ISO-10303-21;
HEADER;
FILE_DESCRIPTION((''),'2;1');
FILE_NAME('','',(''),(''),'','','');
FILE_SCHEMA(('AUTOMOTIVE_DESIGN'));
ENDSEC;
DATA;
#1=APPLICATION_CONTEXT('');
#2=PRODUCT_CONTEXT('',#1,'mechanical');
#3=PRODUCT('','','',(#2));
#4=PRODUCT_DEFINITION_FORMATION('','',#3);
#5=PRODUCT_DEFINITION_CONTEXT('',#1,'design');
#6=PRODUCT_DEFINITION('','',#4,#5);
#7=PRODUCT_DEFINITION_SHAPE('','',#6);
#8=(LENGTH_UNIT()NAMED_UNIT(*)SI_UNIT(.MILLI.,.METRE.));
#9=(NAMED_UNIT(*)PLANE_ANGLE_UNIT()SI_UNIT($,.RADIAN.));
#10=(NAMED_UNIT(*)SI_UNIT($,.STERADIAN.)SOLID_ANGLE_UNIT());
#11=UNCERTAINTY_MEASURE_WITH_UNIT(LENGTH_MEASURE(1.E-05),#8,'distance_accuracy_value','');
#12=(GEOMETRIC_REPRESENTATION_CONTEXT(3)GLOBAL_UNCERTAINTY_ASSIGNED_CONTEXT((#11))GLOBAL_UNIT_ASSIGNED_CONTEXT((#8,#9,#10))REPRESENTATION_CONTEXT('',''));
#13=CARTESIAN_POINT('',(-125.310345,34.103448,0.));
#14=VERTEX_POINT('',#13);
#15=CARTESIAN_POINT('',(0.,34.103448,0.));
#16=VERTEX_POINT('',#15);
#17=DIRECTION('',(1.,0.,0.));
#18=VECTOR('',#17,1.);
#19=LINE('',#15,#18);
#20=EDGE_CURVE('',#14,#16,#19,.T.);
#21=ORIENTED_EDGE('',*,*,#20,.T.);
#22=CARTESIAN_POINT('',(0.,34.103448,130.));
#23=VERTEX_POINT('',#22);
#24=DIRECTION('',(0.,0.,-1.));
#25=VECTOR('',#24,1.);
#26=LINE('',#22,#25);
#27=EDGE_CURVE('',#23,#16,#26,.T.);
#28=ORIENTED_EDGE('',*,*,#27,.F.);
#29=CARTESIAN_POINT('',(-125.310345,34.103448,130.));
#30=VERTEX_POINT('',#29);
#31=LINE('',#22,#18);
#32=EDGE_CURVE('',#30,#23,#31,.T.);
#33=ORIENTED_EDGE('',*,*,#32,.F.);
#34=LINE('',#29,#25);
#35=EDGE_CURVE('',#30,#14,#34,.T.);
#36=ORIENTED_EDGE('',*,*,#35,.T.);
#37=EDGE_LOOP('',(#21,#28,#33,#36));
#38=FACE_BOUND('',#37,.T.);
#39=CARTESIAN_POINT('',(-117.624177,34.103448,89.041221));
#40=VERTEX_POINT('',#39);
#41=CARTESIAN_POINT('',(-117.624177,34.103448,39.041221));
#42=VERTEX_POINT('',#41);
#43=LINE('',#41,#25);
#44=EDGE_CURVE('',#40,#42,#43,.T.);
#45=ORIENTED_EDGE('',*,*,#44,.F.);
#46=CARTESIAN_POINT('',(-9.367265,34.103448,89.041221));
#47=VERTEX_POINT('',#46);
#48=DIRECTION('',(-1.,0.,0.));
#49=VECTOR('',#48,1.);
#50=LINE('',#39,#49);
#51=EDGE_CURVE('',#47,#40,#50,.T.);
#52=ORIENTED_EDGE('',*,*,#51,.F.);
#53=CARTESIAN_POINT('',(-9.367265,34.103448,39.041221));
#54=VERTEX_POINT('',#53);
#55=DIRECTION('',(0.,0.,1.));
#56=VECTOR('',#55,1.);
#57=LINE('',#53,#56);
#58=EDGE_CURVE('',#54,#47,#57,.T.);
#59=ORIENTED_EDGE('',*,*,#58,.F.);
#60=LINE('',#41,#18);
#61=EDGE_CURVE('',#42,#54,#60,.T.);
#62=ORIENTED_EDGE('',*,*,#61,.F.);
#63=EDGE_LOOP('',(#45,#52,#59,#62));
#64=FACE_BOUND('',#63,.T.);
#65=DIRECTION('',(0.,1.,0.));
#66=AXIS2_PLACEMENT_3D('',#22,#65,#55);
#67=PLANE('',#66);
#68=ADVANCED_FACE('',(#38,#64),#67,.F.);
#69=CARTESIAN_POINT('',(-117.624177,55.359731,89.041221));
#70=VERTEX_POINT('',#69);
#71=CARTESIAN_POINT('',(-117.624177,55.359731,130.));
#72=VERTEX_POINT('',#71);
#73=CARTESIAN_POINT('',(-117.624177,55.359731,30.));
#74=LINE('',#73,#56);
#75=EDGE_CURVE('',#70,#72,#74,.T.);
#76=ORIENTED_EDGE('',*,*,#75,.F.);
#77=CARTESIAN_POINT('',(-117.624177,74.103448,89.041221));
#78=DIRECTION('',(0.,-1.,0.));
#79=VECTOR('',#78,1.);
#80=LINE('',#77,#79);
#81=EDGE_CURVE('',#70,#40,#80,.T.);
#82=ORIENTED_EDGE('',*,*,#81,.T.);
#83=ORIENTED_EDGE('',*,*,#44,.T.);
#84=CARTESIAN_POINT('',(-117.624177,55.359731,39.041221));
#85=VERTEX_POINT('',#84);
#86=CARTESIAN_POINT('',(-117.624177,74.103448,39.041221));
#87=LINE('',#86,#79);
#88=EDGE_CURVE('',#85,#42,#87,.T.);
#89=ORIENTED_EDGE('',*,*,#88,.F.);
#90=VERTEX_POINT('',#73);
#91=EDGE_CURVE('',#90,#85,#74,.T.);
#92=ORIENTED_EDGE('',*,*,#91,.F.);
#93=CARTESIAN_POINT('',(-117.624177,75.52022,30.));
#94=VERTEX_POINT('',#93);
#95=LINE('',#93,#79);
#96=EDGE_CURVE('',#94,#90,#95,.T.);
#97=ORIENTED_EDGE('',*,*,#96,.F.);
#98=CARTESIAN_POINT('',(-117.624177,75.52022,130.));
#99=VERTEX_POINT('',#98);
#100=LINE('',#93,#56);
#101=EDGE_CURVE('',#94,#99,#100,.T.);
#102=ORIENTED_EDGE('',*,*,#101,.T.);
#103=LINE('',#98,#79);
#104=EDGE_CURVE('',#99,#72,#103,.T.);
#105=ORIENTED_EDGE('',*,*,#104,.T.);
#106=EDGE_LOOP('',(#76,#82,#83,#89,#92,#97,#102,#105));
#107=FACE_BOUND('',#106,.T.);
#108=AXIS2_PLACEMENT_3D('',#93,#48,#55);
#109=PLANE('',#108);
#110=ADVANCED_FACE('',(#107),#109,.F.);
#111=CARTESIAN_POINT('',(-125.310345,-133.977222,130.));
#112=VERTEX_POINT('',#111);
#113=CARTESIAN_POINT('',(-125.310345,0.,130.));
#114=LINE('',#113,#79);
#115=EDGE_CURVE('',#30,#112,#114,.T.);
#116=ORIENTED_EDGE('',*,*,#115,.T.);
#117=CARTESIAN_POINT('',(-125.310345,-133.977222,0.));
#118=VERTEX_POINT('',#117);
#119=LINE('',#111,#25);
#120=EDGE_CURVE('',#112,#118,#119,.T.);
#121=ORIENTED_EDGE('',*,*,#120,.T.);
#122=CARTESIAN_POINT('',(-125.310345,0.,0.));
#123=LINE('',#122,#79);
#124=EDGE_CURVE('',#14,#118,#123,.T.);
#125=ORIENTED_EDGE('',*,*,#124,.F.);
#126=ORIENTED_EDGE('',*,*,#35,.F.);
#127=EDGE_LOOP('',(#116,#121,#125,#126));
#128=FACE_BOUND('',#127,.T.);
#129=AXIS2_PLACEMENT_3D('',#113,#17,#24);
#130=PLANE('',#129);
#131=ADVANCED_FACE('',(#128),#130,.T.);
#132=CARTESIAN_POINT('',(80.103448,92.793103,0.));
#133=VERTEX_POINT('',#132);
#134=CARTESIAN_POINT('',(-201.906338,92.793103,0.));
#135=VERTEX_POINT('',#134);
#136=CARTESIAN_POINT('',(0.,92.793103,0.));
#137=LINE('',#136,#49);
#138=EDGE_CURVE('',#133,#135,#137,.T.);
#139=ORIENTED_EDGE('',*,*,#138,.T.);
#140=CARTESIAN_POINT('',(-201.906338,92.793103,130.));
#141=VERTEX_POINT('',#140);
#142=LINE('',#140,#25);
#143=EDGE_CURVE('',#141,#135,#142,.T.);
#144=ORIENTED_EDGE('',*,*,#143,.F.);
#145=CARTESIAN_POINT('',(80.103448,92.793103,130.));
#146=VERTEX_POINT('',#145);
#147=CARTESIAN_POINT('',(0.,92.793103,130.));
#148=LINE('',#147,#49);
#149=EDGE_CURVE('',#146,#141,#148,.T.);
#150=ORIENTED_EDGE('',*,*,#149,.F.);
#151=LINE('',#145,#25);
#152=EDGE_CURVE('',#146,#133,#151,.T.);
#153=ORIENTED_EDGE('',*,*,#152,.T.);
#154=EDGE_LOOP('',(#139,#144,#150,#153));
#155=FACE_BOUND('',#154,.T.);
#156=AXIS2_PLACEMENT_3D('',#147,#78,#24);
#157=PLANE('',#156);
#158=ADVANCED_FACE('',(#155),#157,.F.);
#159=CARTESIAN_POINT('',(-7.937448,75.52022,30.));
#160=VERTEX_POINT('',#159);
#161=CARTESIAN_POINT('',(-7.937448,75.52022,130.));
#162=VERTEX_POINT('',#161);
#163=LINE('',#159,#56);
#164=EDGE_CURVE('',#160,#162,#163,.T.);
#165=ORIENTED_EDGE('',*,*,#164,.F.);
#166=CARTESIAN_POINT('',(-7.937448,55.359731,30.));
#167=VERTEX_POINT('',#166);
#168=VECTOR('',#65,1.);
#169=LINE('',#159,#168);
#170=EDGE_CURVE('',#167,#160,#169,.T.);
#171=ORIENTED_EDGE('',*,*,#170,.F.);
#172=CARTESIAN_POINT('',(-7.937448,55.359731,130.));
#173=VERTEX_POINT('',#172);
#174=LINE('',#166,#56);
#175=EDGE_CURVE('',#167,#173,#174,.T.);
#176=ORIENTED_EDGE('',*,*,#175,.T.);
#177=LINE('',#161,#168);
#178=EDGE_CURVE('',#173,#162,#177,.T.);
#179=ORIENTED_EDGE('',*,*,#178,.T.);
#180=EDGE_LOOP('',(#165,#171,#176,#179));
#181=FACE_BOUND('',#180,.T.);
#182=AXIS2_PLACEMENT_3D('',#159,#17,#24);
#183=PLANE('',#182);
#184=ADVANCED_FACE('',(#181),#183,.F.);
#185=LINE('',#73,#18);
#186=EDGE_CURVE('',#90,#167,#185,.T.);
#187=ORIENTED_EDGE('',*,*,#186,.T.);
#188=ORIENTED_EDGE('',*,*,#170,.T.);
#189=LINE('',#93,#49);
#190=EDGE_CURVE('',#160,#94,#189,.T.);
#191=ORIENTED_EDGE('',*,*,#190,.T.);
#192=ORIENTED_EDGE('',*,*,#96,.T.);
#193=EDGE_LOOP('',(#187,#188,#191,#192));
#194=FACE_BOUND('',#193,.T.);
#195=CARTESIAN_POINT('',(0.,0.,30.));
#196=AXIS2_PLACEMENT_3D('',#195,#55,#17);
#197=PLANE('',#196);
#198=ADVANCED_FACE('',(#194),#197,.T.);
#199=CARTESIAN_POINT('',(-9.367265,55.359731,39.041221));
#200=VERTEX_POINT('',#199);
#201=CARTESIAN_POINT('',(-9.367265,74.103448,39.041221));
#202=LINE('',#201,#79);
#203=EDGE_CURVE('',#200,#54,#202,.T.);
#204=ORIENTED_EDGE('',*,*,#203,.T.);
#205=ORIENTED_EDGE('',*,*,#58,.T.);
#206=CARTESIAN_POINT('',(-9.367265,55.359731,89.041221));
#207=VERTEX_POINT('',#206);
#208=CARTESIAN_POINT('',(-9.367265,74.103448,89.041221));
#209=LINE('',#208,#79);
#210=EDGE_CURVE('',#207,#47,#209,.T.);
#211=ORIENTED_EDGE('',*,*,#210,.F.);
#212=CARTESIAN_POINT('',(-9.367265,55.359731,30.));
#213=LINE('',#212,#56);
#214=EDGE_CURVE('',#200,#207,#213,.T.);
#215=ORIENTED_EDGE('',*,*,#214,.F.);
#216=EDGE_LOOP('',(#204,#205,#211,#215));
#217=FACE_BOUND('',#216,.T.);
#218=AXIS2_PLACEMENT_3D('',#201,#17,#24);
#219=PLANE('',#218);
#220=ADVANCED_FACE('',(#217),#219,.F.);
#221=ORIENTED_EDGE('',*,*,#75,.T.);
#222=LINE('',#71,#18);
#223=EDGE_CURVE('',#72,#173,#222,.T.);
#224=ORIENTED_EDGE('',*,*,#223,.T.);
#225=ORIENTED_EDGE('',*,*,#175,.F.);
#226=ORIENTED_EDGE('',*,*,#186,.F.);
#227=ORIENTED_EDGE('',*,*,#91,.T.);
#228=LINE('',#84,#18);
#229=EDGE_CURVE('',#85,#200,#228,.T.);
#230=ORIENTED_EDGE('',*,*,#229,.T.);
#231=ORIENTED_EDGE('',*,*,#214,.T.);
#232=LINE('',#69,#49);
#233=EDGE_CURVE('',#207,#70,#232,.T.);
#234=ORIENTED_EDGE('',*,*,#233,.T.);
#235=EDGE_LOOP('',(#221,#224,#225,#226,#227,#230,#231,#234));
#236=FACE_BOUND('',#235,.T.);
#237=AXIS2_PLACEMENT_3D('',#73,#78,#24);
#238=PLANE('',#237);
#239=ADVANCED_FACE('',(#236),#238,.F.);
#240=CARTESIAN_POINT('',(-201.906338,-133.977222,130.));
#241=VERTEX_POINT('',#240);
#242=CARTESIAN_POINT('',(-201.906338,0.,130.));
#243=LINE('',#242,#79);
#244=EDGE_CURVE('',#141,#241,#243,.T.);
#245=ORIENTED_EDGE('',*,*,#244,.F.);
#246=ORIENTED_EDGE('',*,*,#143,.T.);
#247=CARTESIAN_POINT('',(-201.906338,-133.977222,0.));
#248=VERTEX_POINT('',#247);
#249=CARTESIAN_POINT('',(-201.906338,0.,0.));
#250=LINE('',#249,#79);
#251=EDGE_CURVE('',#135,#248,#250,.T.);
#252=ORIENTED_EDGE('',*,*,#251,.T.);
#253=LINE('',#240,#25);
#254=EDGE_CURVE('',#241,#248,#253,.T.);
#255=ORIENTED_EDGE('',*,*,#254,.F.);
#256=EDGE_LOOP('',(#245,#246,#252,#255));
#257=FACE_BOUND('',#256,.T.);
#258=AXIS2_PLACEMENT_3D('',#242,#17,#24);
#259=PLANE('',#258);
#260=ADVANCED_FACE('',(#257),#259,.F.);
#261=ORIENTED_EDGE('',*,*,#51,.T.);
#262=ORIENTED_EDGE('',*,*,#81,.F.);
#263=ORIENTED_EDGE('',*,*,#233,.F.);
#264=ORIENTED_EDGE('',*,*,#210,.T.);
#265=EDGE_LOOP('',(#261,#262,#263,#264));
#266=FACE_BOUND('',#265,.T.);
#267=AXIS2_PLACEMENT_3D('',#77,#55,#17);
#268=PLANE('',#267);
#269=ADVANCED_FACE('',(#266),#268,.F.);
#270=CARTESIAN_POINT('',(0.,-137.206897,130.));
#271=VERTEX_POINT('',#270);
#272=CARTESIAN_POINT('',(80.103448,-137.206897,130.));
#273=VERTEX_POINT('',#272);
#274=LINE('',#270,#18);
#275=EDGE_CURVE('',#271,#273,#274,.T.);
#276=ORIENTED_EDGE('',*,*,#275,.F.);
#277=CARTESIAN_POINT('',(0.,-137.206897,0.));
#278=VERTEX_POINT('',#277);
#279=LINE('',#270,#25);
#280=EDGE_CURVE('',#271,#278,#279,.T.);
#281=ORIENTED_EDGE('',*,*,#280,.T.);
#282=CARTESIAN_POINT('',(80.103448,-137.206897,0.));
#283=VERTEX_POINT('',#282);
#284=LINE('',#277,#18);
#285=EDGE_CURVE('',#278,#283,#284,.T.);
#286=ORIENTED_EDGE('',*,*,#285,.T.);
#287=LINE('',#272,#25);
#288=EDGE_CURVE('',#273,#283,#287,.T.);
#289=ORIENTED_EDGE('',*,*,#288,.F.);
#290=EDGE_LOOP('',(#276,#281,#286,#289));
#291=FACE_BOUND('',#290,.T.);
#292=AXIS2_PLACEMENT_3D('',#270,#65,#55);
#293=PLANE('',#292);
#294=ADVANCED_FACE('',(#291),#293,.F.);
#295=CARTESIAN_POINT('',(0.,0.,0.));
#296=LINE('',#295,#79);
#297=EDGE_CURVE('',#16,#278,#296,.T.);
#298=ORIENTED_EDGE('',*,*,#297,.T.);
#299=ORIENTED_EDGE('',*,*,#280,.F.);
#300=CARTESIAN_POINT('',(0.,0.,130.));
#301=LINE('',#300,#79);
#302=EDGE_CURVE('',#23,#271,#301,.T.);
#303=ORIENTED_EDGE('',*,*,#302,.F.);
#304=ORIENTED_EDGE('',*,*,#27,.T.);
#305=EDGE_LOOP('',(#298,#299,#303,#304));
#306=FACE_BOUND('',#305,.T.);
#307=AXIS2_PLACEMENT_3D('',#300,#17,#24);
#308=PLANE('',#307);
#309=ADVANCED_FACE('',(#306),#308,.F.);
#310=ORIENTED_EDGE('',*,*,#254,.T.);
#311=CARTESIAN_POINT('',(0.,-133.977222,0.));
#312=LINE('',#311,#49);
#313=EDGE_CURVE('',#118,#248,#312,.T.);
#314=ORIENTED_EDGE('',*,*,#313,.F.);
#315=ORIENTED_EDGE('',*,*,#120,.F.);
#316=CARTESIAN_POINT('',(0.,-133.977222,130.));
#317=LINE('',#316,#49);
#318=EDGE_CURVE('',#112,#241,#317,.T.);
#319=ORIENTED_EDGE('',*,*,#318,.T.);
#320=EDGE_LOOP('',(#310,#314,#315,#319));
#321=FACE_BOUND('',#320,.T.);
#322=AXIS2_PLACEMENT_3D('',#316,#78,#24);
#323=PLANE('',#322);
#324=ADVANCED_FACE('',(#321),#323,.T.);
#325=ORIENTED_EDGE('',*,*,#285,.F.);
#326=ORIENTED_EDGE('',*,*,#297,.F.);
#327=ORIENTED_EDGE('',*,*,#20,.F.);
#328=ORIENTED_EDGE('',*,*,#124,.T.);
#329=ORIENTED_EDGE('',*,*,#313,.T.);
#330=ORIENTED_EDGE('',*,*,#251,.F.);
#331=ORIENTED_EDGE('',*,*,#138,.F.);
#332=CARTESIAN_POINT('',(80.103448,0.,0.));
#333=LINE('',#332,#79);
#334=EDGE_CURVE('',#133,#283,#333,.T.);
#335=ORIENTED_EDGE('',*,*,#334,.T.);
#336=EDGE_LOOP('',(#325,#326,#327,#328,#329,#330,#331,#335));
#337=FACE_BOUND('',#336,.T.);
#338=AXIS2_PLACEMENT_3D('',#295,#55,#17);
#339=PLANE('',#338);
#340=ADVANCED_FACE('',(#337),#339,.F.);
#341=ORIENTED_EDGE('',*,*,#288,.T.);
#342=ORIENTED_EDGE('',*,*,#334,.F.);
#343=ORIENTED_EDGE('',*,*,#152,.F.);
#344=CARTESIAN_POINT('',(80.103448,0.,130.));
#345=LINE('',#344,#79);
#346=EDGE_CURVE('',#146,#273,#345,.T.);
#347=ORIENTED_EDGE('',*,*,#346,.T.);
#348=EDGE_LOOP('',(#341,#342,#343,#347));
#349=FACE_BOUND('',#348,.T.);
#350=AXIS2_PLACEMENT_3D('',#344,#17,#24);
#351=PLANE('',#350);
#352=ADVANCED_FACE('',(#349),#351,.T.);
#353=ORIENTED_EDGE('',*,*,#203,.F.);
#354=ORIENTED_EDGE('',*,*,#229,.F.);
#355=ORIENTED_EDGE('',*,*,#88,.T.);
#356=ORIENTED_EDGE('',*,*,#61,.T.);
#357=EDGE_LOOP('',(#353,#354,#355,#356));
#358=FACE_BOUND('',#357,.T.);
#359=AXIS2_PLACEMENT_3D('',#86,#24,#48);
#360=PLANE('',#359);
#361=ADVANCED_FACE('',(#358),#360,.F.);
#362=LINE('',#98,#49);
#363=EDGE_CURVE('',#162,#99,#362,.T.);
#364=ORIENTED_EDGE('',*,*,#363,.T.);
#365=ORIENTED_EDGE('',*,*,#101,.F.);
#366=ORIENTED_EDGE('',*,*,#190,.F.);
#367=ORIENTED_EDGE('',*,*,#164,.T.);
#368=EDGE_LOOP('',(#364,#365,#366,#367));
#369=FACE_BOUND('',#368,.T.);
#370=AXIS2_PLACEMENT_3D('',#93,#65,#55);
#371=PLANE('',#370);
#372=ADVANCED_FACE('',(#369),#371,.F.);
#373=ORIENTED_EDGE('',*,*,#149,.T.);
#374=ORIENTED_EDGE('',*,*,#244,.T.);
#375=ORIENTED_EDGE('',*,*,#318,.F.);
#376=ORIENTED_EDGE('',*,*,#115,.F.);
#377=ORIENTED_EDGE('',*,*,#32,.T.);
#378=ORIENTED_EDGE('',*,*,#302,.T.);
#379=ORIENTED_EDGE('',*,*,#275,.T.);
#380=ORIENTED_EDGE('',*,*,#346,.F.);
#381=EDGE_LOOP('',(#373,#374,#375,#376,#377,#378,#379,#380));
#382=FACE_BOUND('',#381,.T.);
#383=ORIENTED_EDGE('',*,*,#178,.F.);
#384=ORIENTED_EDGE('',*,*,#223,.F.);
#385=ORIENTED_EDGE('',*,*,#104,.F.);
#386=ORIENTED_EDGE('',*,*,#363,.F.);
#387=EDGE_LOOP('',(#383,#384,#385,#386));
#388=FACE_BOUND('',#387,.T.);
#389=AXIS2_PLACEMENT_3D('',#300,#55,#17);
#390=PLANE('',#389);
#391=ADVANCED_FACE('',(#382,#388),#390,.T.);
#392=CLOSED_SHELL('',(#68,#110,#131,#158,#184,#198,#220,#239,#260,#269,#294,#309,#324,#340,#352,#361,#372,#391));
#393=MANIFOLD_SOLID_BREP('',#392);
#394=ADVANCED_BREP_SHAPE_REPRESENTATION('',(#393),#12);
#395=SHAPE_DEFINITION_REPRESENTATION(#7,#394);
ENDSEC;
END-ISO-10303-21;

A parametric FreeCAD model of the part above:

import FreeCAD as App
import Part
import Sketcher
from FreeCAD import Vector

doc = App.newDocument("Part")
body = doc.addObject("PartDesign::Body", "Body")

# Sketch on XY plane
sketch1 = body.newObject("Sketcher::SketchObject", "Sketch")
sketch1.AttachmentSupport = (doc.getObject("XY_Plane"), [""])
sketch1.MapMode = "FlatFace"
sketch1.addGeometry(Part.LineSegment(Vector(-202, 93, 0), Vector(-202, -134, 0)), False)
sketch1.addGeometry(Part.LineSegment(Vector(-202, -134, 0), Vector(-125, -134, 0)), False)
sketch1.addGeometry(Part.LineSegment(Vector(-125, -134, 0), Vector(-125, 34, 0)), False)
sketch1.addGeometry(Part.LineSegment(Vector(-125, 34, 0), Vector(0, 34, 0)), False)
sketch1.addGeometry(Part.LineSegment(Vector(0, 34, 0), Vector(0, -137, 0)), False)
sketch1.addGeometry(Part.LineSegment(Vector(0, -137, 0), Vector(80, -137, 0)), False)
sketch1.addGeometry(Part.LineSegment(Vector(80, -137, 0), Vector(80, 93, 0)), False)
sketch1.addGeometry(Part.LineSegment(Vector(80, 93, 0), Vector(-125, 93, 0)), False)
sketch1.addGeometry(Part.LineSegment(Vector(-125, 93, 0), Vector(-202, 93, 0)), False)
sketch1.addConstraint(Sketcher.Constraint("Coincident", 0, 2, 1, 1))
sketch1.addConstraint(Sketcher.Constraint("Coincident", 1, 2, 2, 1))
sketch1.addConstraint(Sketcher.Constraint("Coincident", 2, 2, 3, 1))
sketch1.addConstraint(Sketcher.Constraint("Coincident", 3, 2, 4, 1))
sketch1.addConstraint(Sketcher.Constraint("Coincident", 4, 2, 5, 1))
sketch1.addConstraint(Sketcher.Constraint("Coincident", 5, 2, 6, 1))
sketch1.addConstraint(Sketcher.Constraint("Coincident", 6, 2, 7, 1))
sketch1.addConstraint(Sketcher.Constraint("Coincident", 7, 2, 8, 1))
sketch1.addConstraint(Sketcher.Constraint("Coincident", 8, 2, 0, 1))
sketch1.addConstraint(Sketcher.Constraint("Vertical", 0))
sketch1.addConstraint(Sketcher.Constraint("Horizontal", 1))
sketch1.addConstraint(Sketcher.Constraint("Vertical", 2))
sketch1.addConstraint(Sketcher.Constraint("Horizontal", 3))
sketch1.addConstraint(Sketcher.Constraint("Vertical", 4))
sketch1.addConstraint(Sketcher.Constraint("Horizontal", 5))
sketch1.addConstraint(Sketcher.Constraint("Vertical", 6))
sketch1.addConstraint(Sketcher.Constraint("Horizontal", 7))
sketch1.addConstraint(Sketcher.Constraint("Horizontal", 8))
sketch1.addConstraint(Sketcher.Constraint("PointOnObject", 3, 2, -2))
sketch1.addConstraint(Sketcher.Constraint("Vertical", 2, 2, 7, 2))
sketch1.addConstraint(Sketcher.Constraint("DistanceY", 6, 1, 6, 2, 230.0))
sketch1.addConstraint(Sketcher.Constraint("DistanceX", 5, 1, 5, 2, 80.103448))
sketch1.addConstraint(Sketcher.Constraint("DistanceY", 2, 1, 2, 2, 168.08067))
sketch1.addConstraint(Sketcher.Constraint("DistanceX", 1, 1, 1, 2, 76.595993))
sketch1.addConstraint(Sketcher.Constraint("DistanceX", 3, 1, 3, 2, 125.310345))
sketch1.addConstraint(Sketcher.Constraint("DistanceY", 0, 2, 0, 1, 226.770325))
sketch1.addConstraint(Sketcher.Constraint("DistanceY", -1, 1, 2, 2, 34.103448))
pad1 = body.newObject("PartDesign::Pad", "Pad")
pad1.Profile = sketch1
pad1.Length = 130

# Sketch on XY plane
sketch2 = body.newObject("Sketcher::SketchObject", "Sketch001")
sketch2.AttachmentSupport = (doc.getObject("XY_Plane"), [""])
sketch2.MapMode = "FlatFace"
sketch2.AttachmentOffset = App.Placement(Vector(0, 0, 130), App.Rotation())
sketch2.addGeometry(Part.LineSegment(Vector(-118, 76, 0), Vector(-118, 55, 0)), False)
sketch2.addGeometry(Part.LineSegment(Vector(-118, 55, 0), Vector(-8, 55, 0)), False)
sketch2.addGeometry(Part.LineSegment(Vector(-8, 55, 0), Vector(-8, 76, 0)), False)
sketch2.addGeometry(Part.LineSegment(Vector(-8, 76, 0), Vector(-118, 76, 0)), False)
sketch2.addConstraint(Sketcher.Constraint("Coincident", 0, 2, 1, 1))
sketch2.addConstraint(Sketcher.Constraint("Coincident", 1, 2, 2, 1))
sketch2.addConstraint(Sketcher.Constraint("Coincident", 2, 2, 3, 1))
sketch2.addConstraint(Sketcher.Constraint("Coincident", 3, 2, 0, 1))
sketch2.addConstraint(Sketcher.Constraint("Vertical", 0))
sketch2.addConstraint(Sketcher.Constraint("Horizontal", 1))
sketch2.addConstraint(Sketcher.Constraint("Vertical", 2))
sketch2.addConstraint(Sketcher.Constraint("Horizontal", 3))
sketch2.addConstraint(Sketcher.Constraint("DistanceX", 1, 1, 1, 2, 109.686729))
sketch2.addConstraint(Sketcher.Constraint("DistanceY", 0, 2, 0, 1, 20.160489))
sketch2.addConstraint(Sketcher.Constraint("DistanceY", -1, 1, 0, 2, 55.359731))
sketch2.addConstraint(Sketcher.Constraint("DistanceX", 0, 2, -1, 1, 117.624177))
pocket1 = body.newObject("PartDesign::Pocket", "Pocket")
pocket1.Profile = sketch2
pocket1.Length = 100

# Sketch on XZ plane
sketch3 = body.newObject("Sketcher::SketchObject", "Sketch002")
sketch3.AttachmentSupport = (doc.getObject("XZ_Plane"), [""])
sketch3.MapMode = "FlatFace"
sketch3.AttachmentOffset = App.Placement(Vector(0, 0, -34.103448), App.Rotation())
sketch3.addGeometry(Part.LineSegment(Vector(-9, 39, 0), Vector(-9, 89, 0)), False)
sketch3.addGeometry(Part.LineSegment(Vector(-9, 89, 0), Vector(-118, 89, 0)), False)
sketch3.addGeometry(Part.LineSegment(Vector(-118, 89, 0), Vector(-118, 39, 0)), False)
sketch3.addGeometry(Part.LineSegment(Vector(-118, 39, 0), Vector(-9, 39, 0)), False)
sketch3.addConstraint(Sketcher.Constraint("Coincident", 0, 2, 1, 1))
sketch3.addConstraint(Sketcher.Constraint("Coincident", 1, 2, 2, 1))
sketch3.addConstraint(Sketcher.Constraint("Coincident", 2, 2, 3, 1))
sketch3.addConstraint(Sketcher.Constraint("Coincident", 3, 2, 0, 1))
sketch3.addConstraint(Sketcher.Constraint("Vertical", 0))
sketch3.addConstraint(Sketcher.Constraint("Horizontal", 1))
sketch3.addConstraint(Sketcher.Constraint("Vertical", 2))
sketch3.addConstraint(Sketcher.Constraint("Horizontal", 3))
sketch3.addConstraint(Sketcher.Constraint("DistanceY", 0, 1, 0, 2, 50.0))
sketch3.addConstraint(Sketcher.Constraint("DistanceX", 1, 2, 1, 1, 108.256911))
sketch3.addConstraint(Sketcher.Constraint("DistanceY", -1, 1, 0, 2, 89.041221))
sketch3.addConstraint(Sketcher.Constraint("DistanceX", 0, 2, -1, 1, 9.367265))
pocket2 = body.newObject("PartDesign::Pocket", "Pocket001")
pocket2.Profile = sketch3
pocket2.Length = 40

doc.recompute()
